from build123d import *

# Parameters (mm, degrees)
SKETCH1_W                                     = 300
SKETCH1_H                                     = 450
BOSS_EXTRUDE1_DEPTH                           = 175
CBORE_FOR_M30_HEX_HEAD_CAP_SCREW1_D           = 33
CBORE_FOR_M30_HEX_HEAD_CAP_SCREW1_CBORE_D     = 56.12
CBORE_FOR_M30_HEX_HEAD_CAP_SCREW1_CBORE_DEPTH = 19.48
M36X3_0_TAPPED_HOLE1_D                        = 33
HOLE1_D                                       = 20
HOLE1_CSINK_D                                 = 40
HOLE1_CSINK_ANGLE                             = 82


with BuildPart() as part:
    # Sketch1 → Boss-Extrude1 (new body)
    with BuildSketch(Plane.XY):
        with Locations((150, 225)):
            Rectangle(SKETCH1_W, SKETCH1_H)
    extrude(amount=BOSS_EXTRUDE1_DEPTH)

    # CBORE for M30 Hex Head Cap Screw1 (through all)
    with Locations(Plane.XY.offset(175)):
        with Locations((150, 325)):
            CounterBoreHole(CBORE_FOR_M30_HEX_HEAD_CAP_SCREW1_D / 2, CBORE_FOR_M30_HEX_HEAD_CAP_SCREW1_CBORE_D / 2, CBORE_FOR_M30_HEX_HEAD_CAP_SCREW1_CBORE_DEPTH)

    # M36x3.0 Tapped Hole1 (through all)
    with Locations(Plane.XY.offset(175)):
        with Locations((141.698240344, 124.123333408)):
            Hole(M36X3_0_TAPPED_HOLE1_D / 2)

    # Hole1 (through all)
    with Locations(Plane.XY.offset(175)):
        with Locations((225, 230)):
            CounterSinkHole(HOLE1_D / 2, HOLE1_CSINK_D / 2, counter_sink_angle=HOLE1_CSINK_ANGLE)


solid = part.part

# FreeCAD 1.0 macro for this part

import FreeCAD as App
import Part
import Sketcher


def add_polygon(sketch, points):
    """Adds a closed chain of lines whose ends are joined by coincident constraints."""
    first, n = sketch.GeometryCount, len(points)
    for a, b in zip(points, points[1:] + points[:1]):
        sketch.addGeometry(Part.LineSegment(App.Vector(*a, 0), App.Vector(*b, 0)), False)
    for i in range(n):
        sketch.addConstraint(Sketcher.Constraint("Coincident", first + i, 2, first + (i + 1) % n, 1))

doc = App.newDocument("Part")
body = doc.addObject("PartDesign::Body", "Body")

# Sketch on XY plane
sketch1 = body.newObject("Sketcher::SketchObject", "Sketch")
sketch1.AttachmentSupport = (doc.getObject("XY_Plane"), [""])
sketch1.MapMode = "FlatFace"
add_polygon(sketch1, [(0, 450), (0, 0), (300, 0), (300, 450)])  # lines 0-3
sketch1.addConstraint([
    Sketcher.Constraint("Vertical", 0),
    Sketcher.Constraint("Horizontal", 1),
    Sketcher.Constraint("Vertical", 2),
    Sketcher.Constraint("Horizontal", 3),
    Sketcher.Constraint("Coincident", 0, 2, -1, 1),
    Sketcher.Constraint("DistanceX", 1, 1, 1, 2, 300.0),
    Sketcher.Constraint("DistanceY", 0, 2, 0, 1, 450.0),
])
pad1 = body.newObject("PartDesign::Pad", "Pad")
pad1.Profile = sketch1
pad1.Length = 175

# Sketch on XY plane
sketch2 = body.newObject("Sketcher::SketchObject", "Sketch001")
sketch2.AttachmentSupport = (doc.getObject("XY_Plane"), [""])
sketch2.MapMode = "FlatFace"
sketch2.AttachmentOffset = App.Placement(App.Vector(0, 0, 175), App.Rotation())
sketch2.addGeometry(Part.Circle(App.Vector(150, 325, 0), App.Vector(0, 0, 1), 16), False)
sketch2.addConstraint([
    Sketcher.Constraint("Diameter", 0, 33.0),
    Sketcher.Constraint("DistanceX", -1, 1, 0, 3, 150.0),
    Sketcher.Constraint("DistanceY", -1, 1, 0, 3, 325.0),
])
doc.recompute()
hole = body.newObject("PartDesign::Hole", "Hole")
hole.Profile = sketch2
hole.ThreadType = "None"
hole.Diameter = 33
hole.DepthType = "ThroughAll"
hole.HoleCutType = "Counterbore"
hole.HoleCutDiameter = 56.12
hole.HoleCutDepth = 19.48

# Sketch on XY plane
sketch3 = body.newObject("Sketcher::SketchObject", "Sketch002")
sketch3.AttachmentSupport = (doc.getObject("XY_Plane"), [""])
sketch3.MapMode = "FlatFace"
sketch3.AttachmentOffset = App.Placement(App.Vector(0, 0, 175), App.Rotation())
sketch3.addGeometry(Part.Circle(App.Vector(142, 124, 0), App.Vector(0, 0, 1), 16), False)
sketch3.addConstraint([
    Sketcher.Constraint("Diameter", 0, 33.0),
    Sketcher.Constraint("DistanceX", -1, 1, 0, 3, 141.69824),
    Sketcher.Constraint("DistanceY", -1, 1, 0, 3, 124.123333),
])
doc.recompute()
hole2 = body.newObject("PartDesign::Hole", "Hole001")
hole2.Profile = sketch3
hole2.ThreadType = "None"
hole2.Diameter = 33
hole2.DepthType = "ThroughAll"

# Sketch on XY plane
sketch4 = body.newObject("Sketcher::SketchObject", "Sketch003")
sketch4.AttachmentSupport = (doc.getObject("XY_Plane"), [""])
sketch4.MapMode = "FlatFace"
sketch4.AttachmentOffset = App.Placement(App.Vector(0, 0, 175), App.Rotation())
sketch4.addGeometry(Part.Circle(App.Vector(225, 230, 0), App.Vector(0, 0, 1), 10), False)
sketch4.addConstraint([
    Sketcher.Constraint("Diameter", 0, 20.0),
    Sketcher.Constraint("DistanceX", -1, 1, 0, 3, 225.0),
    Sketcher.Constraint("DistanceY", -1, 1, 0, 3, 230.0),
])
doc.recompute()
hole3 = body.newObject("PartDesign::Hole", "Hole002")
hole3.Profile = sketch4
hole3.ThreadType = "None"
hole3.Diameter = 20
hole3.DepthType = "ThroughAll"
hole3.HoleCutType = "Countersink"
hole3.HoleCutDiameter = 40
hole3.HoleCutCountersinkAngle = 82

doc.recompute()
